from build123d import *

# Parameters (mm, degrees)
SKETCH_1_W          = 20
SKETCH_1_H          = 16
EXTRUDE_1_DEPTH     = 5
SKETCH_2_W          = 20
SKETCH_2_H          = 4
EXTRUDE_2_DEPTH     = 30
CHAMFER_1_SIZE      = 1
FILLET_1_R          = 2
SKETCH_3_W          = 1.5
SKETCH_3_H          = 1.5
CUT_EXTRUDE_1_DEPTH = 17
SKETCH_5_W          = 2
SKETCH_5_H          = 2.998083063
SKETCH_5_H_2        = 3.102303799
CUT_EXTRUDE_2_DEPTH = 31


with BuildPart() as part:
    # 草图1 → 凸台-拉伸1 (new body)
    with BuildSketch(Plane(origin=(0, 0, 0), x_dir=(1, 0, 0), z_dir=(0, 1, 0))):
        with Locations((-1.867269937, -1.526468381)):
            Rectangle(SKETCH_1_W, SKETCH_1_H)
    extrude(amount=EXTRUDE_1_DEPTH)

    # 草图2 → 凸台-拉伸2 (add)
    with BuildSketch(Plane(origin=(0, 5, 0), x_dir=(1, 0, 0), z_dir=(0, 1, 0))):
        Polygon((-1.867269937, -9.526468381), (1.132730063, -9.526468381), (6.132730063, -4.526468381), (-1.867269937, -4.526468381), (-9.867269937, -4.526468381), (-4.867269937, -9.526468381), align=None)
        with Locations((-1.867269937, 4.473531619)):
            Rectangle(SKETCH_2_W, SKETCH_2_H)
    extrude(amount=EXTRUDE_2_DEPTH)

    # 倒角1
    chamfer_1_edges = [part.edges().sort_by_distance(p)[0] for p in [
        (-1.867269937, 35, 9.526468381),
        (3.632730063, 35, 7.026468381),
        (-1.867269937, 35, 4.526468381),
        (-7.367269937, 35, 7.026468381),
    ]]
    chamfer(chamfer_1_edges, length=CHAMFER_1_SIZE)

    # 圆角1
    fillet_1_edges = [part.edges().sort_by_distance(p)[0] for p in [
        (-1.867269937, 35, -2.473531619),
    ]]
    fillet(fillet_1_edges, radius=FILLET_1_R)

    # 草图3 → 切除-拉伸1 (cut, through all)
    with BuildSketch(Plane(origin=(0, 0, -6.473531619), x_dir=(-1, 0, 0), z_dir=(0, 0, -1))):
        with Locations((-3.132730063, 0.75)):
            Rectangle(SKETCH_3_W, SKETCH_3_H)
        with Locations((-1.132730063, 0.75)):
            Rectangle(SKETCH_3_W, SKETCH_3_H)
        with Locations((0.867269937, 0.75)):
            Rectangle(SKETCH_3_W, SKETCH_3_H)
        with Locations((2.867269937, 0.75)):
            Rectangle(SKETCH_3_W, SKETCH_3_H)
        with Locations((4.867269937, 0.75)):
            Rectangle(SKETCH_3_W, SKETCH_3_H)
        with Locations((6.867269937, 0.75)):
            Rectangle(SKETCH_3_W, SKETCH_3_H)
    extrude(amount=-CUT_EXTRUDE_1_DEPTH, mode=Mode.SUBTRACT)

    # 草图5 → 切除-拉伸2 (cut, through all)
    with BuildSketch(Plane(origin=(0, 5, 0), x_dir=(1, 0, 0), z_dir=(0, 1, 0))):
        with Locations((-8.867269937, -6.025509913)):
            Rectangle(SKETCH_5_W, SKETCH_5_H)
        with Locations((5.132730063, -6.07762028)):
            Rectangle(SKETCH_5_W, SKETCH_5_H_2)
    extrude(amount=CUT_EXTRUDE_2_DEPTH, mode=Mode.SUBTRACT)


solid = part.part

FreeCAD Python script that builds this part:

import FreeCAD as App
import Part
import Sketcher
Q = App.Units.Quantity


def edges_at(feature, points):
    """Names of the edges that pass closest to the given points."""
    edges = feature.Shape.Edges
    near = lambda p: min(range(len(edges)), key=lambda i: edges[i].distToShape(Part.Vertex(*p))[0])
    return sorted({f"Edge{near(p) + 1}" for p in points})


def add_polygon(sketch, points):
    """Adds a closed chain of lines whose ends are joined by coincident constraints."""
    first, n = sketch.GeometryCount, len(points)
    for a, b in zip(points, points[1:] + points[:1]):
        sketch.addGeometry(Part.LineSegment(App.Vector(*a, 0), App.Vector(*b, 0)), False)
    for i in range(n):
        sketch.addConstraint(Sketcher.Constraint("Coincident", first + i, 2, first + (i + 1) % n, 1))

doc = App.newDocument("Part")
body = doc.addObject("PartDesign::Body", "Body")

# Sketch on XZ plane
sketch1 = body.newObject("Sketcher::SketchObject", "Sketch")
sketch1.AttachmentSupport = (doc.getObject("XZ_Plane"), [""])
sketch1.MapMode = "FlatFace"
add_polygon(sketch1, [(-11.86727, -6.473532), (-11.86727, 9.526468), (8.13273, 9.526468), (8.13273, -6.473532)])  # lines 0-3
sketch1.addConstraint(Sketcher.Constraint("Vertical", 0))
sketch1.addConstraint(Sketcher.Constraint("Horizontal", 1))
sketch1.addConstraint(Sketcher.Constraint("Vertical", 2))
sketch1.addConstraint(Sketcher.Constraint("Horizontal", 3))
sketch1.addConstraint(Sketcher.Constraint("DistanceX", 1, 1, 1, 2, Q("20 mm")))
sketch1.addConstraint(Sketcher.Constraint("DistanceY", 0, 1, 0, 2, Q("16 mm")))
sketch1.addConstraint(Sketcher.Constraint("DistanceX", 0, 2, -1, 1, Q("11.86727 mm")))
sketch1.addConstraint(Sketcher.Constraint("DistanceY", -1, 1, 0, 2, Q("9.526468 mm")))
pad1 = body.newObject("PartDesign::Pad", "Pad")
pad1.Profile = sketch1
pad1.Length = 5
pad1.Reversed = True

# Sketch on XZ plane
sketch2 = body.newObject("Sketcher::SketchObject", "Sketch001")
sketch2.AttachmentSupport = (doc.getObject("XZ_Plane"), [""])
sketch2.MapMode = "FlatFace"
sketch2.AttachmentOffset = App.Placement(App.Vector(0, 0, -5), App.Rotation())
add_polygon(sketch2, [(1.13273, 9.526468), (6.13273, 4.526468), (-9.86727, 4.526468), (-4.86727, 9.526468)])  # lines 0-3
add_polygon(sketch2, [(-11.86727, -6.473532), (-11.86727, -2.473532), (8.13273, -2.473532), (8.13273, -6.473532)])  # lines 4-7
sketch2.addConstraint(Sketcher.Constraint("Horizontal", 1))
sketch2.addConstraint(Sketcher.Constraint("Horizontal", 3))
sketch2.addConstraint(Sketcher.Constraint("Vertical", 4))
sketch2.addConstraint(Sketcher.Constraint("Horizontal", 5))
sketch2.addConstraint(Sketcher.Constraint("Vertical", 6))
sketch2.addConstraint(Sketcher.Constraint("Horizontal", 7))
sketch2.addConstraint(Sketcher.Constraint("Perpendicular", 0, 2))
sketch2.addConstraint(Sketcher.Constraint("Equal", 0, 2))
sketch2.addConstraint(Sketcher.Constraint("DistanceX", 1, 2, 1, 1, Q("16 mm")))
sketch2.addConstraint(Sketcher.Constraint("DistanceX", 3, 1, 3, 2, Q("6 mm")))
sketch2.addConstraint(Sketcher.Constraint("DistanceX", 5, 1, 5, 2, Q("20 mm")))
sketch2.addConstraint(Sketcher.Constraint("DistanceY", 4, 1, 4, 2, Q("4 mm")))
sketch2.addConstraint(Sketcher.Constraint("DistanceX", 4, 2, 1, 2, Q("2 mm")))
sketch2.addConstraint(Sketcher.Constraint("DistanceY", 4, 2, 1, 2, Q("7 mm")))
sketch2.addConstraint(Sketcher.Constraint("DistanceX", -1, 1, 0, 2, Q("6.13273 mm")))
sketch2.addConstraint(Sketcher.Constraint("DistanceY", -1, 1, 0, 2, Q("4.526468 mm")))
pad2 = body.newObject("PartDesign::Pad", "Pad001")
pad2.Profile = sketch2
pad2.Length = 30
pad2.Reversed = True
doc.recompute()

chamfer = body.newObject("PartDesign::Chamfer", "Chamfer")
chamfer.Base = (pad2, edges_at(pad2, [
    (-1.867, 35, 9.526),
    (3.633, 35, 7.026),
    (-1.867, 35, 4.526),
    (-7.367, 35, 7.026),
]))
chamfer.Size = 1
doc.recompute()

fillet = body.newObject("PartDesign::Fillet", "Fillet")
fillet.Base = (chamfer, edges_at(chamfer, [(-1.867, 35, -2.474)]))
fillet.Radius = 2

# Sketch on XY plane
sketch3 = body.newObject("Sketcher::SketchObject", "Sketch002")
sketch3.AttachmentSupport = (doc.getObject("XY_Plane"), [""])
sketch3.MapMode = "FlatFace"
sketch3.AttachmentOffset = App.Placement(App.Vector(0, 0, -6.473532), App.Rotation())
add_polygon(sketch3, [(3.88273, 1.5), (3.88273, 0), (2.38273, 0), (2.38273, 1.5)])  # lines 0-3
add_polygon(sketch3, [(1.88273, 1.5), (1.88273, 0), (0.38273, 0), (0.38273, 1.5)])  # lines 4-7
add_polygon(sketch3, [(-0.11727, 1.5), (-0.11727, 0), (-1.61727, 0), (-1.61727, 1.5)])  # lines 8-11
add_polygon(sketch3, [(-2.11727, 1.5), (-2.11727, 0), (-3.61727, 0), (-3.61727, 1.5)])  # lines 12-15
add_polygon(sketch3, [(-4.11727, 1.5), (-4.11727, 0), (-5.61727, 0), (-5.61727, 1.5)])  # lines 16-19
add_polygon(sketch3, [(-6.11727, 1.5), (-6.11727, 0), (-7.61727, 0), (-7.61727, 1.5)])  # lines 20-23
sketch3.addConstraint(Sketcher.Constraint("Vertical", 0))
sketch3.addConstraint(Sketcher.Constraint("Horizontal", 1))
sketch3.addConstraint(Sketcher.Constraint("Vertical", 2))
sketch3.addConstraint(Sketcher.Constraint("Horizontal", 3))
sketch3.addConstraint(Sketcher.Constraint("Vertical", 4))
sketch3.addConstraint(Sketcher.Constraint("Horizontal", 5))
sketch3.addConstraint(Sketcher.Constraint("Vertical", 6))
sketch3.addConstraint(Sketcher.Constraint("Horizontal", 7))
sketch3.addConstraint(Sketcher.Constraint("Vertical", 8))
sketch3.addConstraint(Sketcher.Constraint("Horizontal", 9))
sketch3.addConstraint(Sketcher.Constraint("Vertical", 10))
sketch3.addConstraint(Sketcher.Constraint("Horizontal", 11))
sketch3.addConstraint(Sketcher.Constraint("Vertical", 12))
sketch3.addConstraint(Sketcher.Constraint("Horizontal", 13))
sketch3.addConstraint(Sketcher.Constraint("Vertical", 14))
sketch3.addConstraint(Sketcher.Constraint("Horizontal", 15))
sketch3.addConstraint(Sketcher.Constraint("Vertical", 16))
sketch3.addConstraint(Sketcher.Constraint("Horizontal", 17))
sketch3.addConstraint(Sketcher.Constraint("Vertical", 18))
sketch3.addConstraint(Sketcher.Constraint("Horizontal", 19))
sketch3.addConstraint(Sketcher.Constraint("Vertical", 20))
sketch3.addConstraint(Sketcher.Constraint("Horizontal", 21))
sketch3.addConstraint(Sketcher.Constraint("Vertical", 22))
sketch3.addConstraint(Sketcher.Constraint("Horizontal", 23))
sketch3.addConstraint(Sketcher.Constraint("PointOnObject", 0, 2, -1))
sketch3.addConstraint(Sketcher.Constraint("PointOnObject", 4, 2, -1))
sketch3.addConstraint(Sketcher.Constraint("PointOnObject", 8, 2, -1))
sketch3.addConstraint(Sketcher.Constraint("PointOnObject", 12, 2, -1))
sketch3.addConstraint(Sketcher.Constraint("PointOnObject", 16, 2, -1))
sketch3.addConstraint(Sketcher.Constraint("PointOnObject", 20, 2, -1))
sketch3.addConstraint(Sketcher.Constraint("Horizontal", 3, 2, 6, 2))
sketch3.addConstraint(Sketcher.Constraint("Horizontal", 7, 2, 10, 2))
sketch3.addConstraint(Sketcher.Constraint("Horizontal", 11, 2, 14, 2))
sketch3.addConstraint(Sketcher.Constraint("Horizontal", 15, 2, 18, 2))
sketch3.addConstraint(Sketcher.Constraint("Horizontal", 19, 2, 22, 2))
sketch3.addConstraint(Sketcher.Constraint("Equal", 3, 5))
sketch3.addConstraint(Sketcher.Constraint("Equal", 7, 9))
sketch3.addConstraint(Sketcher.Constraint("Equal", 11, 13))
sketch3.addConstraint(Sketcher.Constraint("Equal", 15, 17))
sketch3.addConstraint(Sketcher.Constraint("Equal", 19, 21))
sketch3.addConstraint(Sketcher.Constraint("Equal", 23, 0))
sketch3.addConstraint(Sketcher.Constraint("DistanceX", 1, 2, 1, 1, Q("1.5 mm")))
sketch3.addConstraint(Sketcher.Constraint("DistanceX", 4, 2, 0, 2, Q("2 mm")))
sketch3.addConstraint(Sketcher.Constraint("DistanceX", 8, 2, 4, 2, Q("2 mm")))
sketch3.addConstraint(Sketcher.Constraint("DistanceX", 12, 2, 8, 2, Q("2 mm")))
sketch3.addConstraint(Sketcher.Constraint("DistanceX", 16, 2, 12, 2, Q("2 mm")))
sketch3.addConstraint(Sketcher.Constraint("DistanceX", 20, 2, 16, 2, Q("2 mm")))
sketch3.addConstraint(Sketcher.Constraint("DistanceX", -1, 1, 0, 2, Q("3.88273 mm")))
pocket1 = body.newObject("PartDesign::Pocket", "Pocket")
pocket1.Profile = sketch3
pocket1.Type = "ThroughAll"
pocket1.Reversed = True

# Sketch on XZ plane
sketch4 = body.newObject("Sketcher::SketchObject", "Sketch003")
sketch4.AttachmentSupport = (doc.getObject("XZ_Plane"), [""])
sketch4.MapMode = "FlatFace"
sketch4.AttachmentOffset = App.Placement(App.Vector(0, 0, -5), App.Rotation())
add_polygon(sketch4, [(-9.86727, 4.526468), (-9.86727, 7.524551), (-7.86727, 7.524551), (-7.86727, 4.526468)])  # lines 0-3
add_polygon(sketch4, [(4.13273, 4.526468), (4.13273, 7.628772), (6.13273, 7.628772), (6.13273, 4.526468)])  # lines 4-7
sketch4.addConstraint(Sketcher.Constraint("Vertical", 0))
sketch4.addConstraint(Sketcher.Constraint("Horizontal", 1))
sketch4.addConstraint(Sketcher.Constraint("Vertical", 2))
sketch4.addConstraint(Sketcher.Constraint("Horizontal", 3))
sketch4.addConstraint(Sketcher.Constraint("Vertical", 4))
sketch4.addConstraint(Sketcher.Constraint("Horizontal", 5))
sketch4.addConstraint(Sketcher.Constraint("Vertical", 6))
sketch4.addConstraint(Sketcher.Constraint("Horizontal", 7))
sketch4.addConstraint(Sketcher.Constraint("Horizontal", 3, 2, 6, 2))
sketch4.addConstraint(Sketcher.Constraint("Equal", 3, 5))
sketch4.addConstraint(Sketcher.Constraint("DistanceX", 1, 1, 1, 2, Q("2 mm")))
sketch4.addConstraint(Sketcher.Constraint("DistanceX", 1, 2, 4, 2, Q("12 mm")))
sketch4.addConstraint(Sketcher.Constraint("DistanceY", 0, 1, 0, 2, Q("2.998083 mm")))
sketch4.addConstraint(Sketcher.Constraint("DistanceY", 4, 1, 4, 2, Q("3.102304 mm")))
sketch4.addConstraint(Sketcher.Constraint("DistanceX", 0, 2, -1, 1, Q("9.86727 mm")))
sketch4.addConstraint(Sketcher.Constraint("DistanceY", -1, 1, 0, 2, Q("7.524551 mm")))
pocket2 = body.newObject("PartDesign::Pocket", "Pocket001")
pocket2.Profile = sketch4
pocket2.Type = "ThroughAll"

doc.recompute()
